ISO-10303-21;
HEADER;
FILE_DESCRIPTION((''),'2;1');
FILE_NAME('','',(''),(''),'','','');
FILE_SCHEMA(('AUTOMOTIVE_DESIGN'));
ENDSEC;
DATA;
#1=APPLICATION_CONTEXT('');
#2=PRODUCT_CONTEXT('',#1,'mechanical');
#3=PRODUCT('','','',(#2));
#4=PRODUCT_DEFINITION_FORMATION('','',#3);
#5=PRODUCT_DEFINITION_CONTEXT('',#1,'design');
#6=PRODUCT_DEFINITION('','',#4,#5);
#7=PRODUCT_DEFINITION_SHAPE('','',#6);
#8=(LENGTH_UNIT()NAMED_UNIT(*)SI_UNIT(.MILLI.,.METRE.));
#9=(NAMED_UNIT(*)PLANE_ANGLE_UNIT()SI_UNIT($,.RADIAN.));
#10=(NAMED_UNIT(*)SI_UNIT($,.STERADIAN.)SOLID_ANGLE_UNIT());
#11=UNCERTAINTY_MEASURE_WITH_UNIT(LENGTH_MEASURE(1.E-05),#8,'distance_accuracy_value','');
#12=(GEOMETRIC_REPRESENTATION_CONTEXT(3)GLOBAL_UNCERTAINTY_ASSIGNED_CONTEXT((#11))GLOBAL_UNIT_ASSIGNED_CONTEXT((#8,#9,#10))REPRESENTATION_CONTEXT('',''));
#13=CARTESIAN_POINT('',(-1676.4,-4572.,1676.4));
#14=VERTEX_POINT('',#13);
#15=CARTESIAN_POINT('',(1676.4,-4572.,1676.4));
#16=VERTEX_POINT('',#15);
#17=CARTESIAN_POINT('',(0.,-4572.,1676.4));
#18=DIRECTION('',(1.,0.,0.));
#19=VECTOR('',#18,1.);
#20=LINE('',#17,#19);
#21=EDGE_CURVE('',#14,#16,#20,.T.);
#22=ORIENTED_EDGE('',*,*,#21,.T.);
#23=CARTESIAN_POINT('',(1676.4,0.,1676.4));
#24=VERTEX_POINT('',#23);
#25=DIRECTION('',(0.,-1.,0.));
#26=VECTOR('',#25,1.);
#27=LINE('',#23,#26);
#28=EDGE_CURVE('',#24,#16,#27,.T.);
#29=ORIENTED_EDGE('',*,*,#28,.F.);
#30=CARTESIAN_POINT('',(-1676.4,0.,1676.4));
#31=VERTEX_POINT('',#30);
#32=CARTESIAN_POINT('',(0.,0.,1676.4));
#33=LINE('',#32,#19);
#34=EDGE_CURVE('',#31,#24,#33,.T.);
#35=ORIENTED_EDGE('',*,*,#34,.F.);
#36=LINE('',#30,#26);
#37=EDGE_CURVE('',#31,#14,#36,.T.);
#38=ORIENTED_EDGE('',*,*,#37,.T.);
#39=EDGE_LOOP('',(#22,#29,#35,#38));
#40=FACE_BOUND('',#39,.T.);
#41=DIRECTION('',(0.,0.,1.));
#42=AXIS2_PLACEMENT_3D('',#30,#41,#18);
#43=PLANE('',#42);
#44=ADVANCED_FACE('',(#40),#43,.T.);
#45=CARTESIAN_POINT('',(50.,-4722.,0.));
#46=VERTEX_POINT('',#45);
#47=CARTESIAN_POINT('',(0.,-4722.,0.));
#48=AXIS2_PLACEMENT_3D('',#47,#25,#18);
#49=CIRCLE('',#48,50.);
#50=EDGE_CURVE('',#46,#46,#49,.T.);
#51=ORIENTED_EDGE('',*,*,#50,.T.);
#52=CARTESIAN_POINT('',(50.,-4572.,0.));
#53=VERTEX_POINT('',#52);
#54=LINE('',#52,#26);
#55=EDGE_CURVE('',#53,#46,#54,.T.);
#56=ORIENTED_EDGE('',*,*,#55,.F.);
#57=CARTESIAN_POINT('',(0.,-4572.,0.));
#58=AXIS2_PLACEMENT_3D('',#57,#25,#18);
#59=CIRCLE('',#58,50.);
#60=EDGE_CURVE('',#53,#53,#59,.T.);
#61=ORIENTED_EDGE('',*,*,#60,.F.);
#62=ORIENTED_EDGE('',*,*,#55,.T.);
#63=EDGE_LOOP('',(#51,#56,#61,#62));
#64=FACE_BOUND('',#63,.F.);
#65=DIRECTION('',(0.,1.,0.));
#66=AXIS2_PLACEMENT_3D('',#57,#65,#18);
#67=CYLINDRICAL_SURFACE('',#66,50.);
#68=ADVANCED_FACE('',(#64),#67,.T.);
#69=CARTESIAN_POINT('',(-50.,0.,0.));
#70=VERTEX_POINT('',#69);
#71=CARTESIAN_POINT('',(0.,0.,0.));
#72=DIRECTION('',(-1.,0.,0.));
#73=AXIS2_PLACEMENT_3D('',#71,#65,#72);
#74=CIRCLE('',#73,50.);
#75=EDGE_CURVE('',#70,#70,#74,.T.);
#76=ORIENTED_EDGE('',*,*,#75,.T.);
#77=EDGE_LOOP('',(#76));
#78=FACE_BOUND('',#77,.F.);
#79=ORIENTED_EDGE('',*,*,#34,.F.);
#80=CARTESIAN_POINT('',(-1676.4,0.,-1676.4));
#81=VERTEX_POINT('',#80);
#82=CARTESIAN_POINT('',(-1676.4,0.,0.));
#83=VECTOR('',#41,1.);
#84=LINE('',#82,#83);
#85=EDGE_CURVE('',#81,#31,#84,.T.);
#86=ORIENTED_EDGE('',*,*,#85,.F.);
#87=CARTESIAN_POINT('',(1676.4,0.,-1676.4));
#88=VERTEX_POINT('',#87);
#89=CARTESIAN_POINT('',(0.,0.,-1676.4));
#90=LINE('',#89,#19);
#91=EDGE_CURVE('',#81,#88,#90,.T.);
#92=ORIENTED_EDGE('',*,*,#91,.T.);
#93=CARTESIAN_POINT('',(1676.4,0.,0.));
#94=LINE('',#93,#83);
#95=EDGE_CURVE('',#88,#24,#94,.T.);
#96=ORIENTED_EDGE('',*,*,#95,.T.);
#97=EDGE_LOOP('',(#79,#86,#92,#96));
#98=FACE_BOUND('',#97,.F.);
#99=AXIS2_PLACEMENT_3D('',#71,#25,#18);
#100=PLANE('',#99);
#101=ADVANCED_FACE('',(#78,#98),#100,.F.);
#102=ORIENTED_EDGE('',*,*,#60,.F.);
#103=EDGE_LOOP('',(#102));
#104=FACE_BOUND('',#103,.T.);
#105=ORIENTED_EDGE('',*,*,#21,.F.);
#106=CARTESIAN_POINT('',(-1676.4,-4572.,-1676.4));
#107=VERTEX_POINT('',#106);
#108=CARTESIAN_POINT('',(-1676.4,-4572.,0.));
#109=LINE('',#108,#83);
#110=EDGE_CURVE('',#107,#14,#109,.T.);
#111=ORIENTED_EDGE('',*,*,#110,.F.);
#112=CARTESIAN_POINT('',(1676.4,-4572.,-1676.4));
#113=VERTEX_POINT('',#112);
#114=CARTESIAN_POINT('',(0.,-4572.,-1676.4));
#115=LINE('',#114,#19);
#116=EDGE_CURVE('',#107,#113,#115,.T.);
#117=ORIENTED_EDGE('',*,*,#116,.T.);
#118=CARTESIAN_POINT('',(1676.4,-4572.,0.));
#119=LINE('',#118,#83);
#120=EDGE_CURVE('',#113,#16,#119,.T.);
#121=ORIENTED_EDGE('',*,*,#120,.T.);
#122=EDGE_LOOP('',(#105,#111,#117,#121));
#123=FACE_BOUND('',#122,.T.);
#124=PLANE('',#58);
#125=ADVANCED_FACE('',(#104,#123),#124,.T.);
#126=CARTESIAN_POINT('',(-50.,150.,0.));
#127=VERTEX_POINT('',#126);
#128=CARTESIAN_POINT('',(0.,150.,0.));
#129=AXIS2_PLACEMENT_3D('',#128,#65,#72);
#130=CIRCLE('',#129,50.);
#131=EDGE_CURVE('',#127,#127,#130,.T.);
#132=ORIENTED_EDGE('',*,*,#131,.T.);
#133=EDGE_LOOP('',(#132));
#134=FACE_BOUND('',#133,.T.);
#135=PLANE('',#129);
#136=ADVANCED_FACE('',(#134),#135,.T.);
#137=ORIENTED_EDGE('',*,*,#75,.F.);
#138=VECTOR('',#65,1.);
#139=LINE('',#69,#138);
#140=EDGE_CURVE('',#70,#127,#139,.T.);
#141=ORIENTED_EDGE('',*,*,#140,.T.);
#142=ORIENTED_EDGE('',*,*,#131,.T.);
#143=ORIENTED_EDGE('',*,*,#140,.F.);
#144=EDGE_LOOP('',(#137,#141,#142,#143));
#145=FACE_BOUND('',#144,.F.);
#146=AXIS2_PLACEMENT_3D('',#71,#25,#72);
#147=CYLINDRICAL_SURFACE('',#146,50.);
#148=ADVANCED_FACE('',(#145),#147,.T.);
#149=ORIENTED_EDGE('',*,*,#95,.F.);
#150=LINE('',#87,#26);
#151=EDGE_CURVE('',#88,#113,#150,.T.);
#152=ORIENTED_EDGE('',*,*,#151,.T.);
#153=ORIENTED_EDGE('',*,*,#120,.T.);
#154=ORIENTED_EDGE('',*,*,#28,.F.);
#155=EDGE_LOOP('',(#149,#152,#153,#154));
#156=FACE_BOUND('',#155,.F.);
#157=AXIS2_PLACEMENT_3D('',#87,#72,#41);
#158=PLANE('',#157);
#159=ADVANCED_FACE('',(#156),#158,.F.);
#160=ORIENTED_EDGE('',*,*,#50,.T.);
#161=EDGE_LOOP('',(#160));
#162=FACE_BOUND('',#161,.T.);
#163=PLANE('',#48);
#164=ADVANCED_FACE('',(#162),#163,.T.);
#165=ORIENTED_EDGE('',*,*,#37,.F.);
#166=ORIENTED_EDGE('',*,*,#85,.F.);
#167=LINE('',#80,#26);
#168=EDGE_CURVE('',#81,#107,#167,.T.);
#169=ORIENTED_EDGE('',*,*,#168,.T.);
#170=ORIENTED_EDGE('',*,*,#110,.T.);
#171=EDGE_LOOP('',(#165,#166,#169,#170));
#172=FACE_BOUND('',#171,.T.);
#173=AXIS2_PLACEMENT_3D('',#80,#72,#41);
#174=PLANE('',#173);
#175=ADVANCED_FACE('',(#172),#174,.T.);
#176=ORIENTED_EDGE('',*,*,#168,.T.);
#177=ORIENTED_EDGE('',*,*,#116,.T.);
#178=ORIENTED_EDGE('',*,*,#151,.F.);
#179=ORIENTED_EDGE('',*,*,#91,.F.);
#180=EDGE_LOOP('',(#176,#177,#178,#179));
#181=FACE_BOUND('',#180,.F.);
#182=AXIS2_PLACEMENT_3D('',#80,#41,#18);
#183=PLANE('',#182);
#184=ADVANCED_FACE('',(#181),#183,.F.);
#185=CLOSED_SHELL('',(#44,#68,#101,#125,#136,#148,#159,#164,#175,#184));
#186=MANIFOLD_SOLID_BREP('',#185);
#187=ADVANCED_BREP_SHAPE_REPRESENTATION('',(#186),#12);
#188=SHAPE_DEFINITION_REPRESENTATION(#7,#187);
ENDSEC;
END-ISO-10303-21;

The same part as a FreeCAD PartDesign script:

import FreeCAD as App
import Part
import Sketcher

doc = App.newDocument("Part")
body = doc.addObject("PartDesign::Body", "Body")

# Sketch on XZ plane
sketch1 = doc.addObject("Sketcher::SketchObject", "Sketch")
body.addObject(sketch1)
sketch1.AttachmentSupport = (doc.XZ_Plane, [""])
sketch1.MapMode = "FlatFace"
sketch1.addGeometry(Part.LineSegment(App.Vector(-1676.4, 1676.4, 0), App.Vector(-1676.4, -1676.4, 0)), False)
sketch1.addGeometry(Part.LineSegment(App.Vector(-1676.4, -1676.4, 0), App.Vector(1676.4, -1676.4, 0)), False)
sketch1.addGeometry(Part.LineSegment(App.Vector(1676.4, -1676.4, 0), App.Vector(1676.4, 1676.4, 0)), False)
sketch1.addGeometry(Part.LineSegment(App.Vector(1676.4, 1676.4, 0), App.Vector(-1676.4, 1676.4, 0)), False)
sketch1.addConstraint(Sketcher.Constraint("Coincident", 0, 2, 1, 1))
sketch1.addConstraint(Sketcher.Constraint("Coincident", 1, 2, 2, 1))
sketch1.addConstraint(Sketcher.Constraint("Coincident", 2, 2, 3, 1))
sketch1.addConstraint(Sketcher.Constraint("Coincident", 3, 2, 0, 1))
sketch1.addConstraint(Sketcher.Constraint("Vertical", 0))
sketch1.addConstraint(Sketcher.Constraint("Horizontal", 1))
sketch1.addConstraint(Sketcher.Constraint("Vertical", 2))
sketch1.addConstraint(Sketcher.Constraint("Horizontal", 3))
sketch1.addConstraint(Sketcher.Constraint("Symmetric", 0, 2, 2, 2, -1, 1))
sketch1.addConstraint(Sketcher.Constraint("Equal", 3, 0))
sketch1.addConstraint(Sketcher.Constraint("DistanceX", 1, 1, 1, 2, 3352.8))
pad1 = doc.addObject("PartDesign::Pad", "Pad")
body.addObject(pad1)
pad1.Profile = sketch1
pad1.Length = 4572

# Sketch on XZ plane
sketch2 = doc.addObject("Sketcher::SketchObject", "Sketch001")
body.addObject(sketch2)
sketch2.AttachmentSupport = (doc.XZ_Plane, [""])
sketch2.MapMode = "FlatFace"
sketch2.addGeometry(Part.Circle(App.Vector(0, 0, 0), App.Vector(0, 0, 1), 50), False)
sketch2.addConstraint(Sketcher.Constraint("Coincident", 0, 3, -1, 1))
sketch2.addConstraint(Sketcher.Constraint("Diameter", 0, 100.0))
pad2 = doc.addObject("PartDesign::Pad", "Pad001")
body.addObject(pad2)
pad2.Profile = sketch2
pad2.Length = 150
pad2.Reversed = True

# Sketch on XZ plane
sketch3 = doc.addObject("Sketcher::SketchObject", "Sketch002")
body.addObject(sketch3)
sketch3.AttachmentSupport = (doc.XZ_Plane, [""])
sketch3.MapMode = "FlatFace"
sketch3.AttachmentOffset = App.Placement(App.Vector(0, 0, 4572), App.Rotation())
sketch3.addGeometry(Part.Circle(App.Vector(0, 0, 0), App.Vector(0, 0, 1), 50), False)
sketch3.addConstraint(Sketcher.Constraint("Coincident", 0, 3, -1, 1))
sketch3.addConstraint(Sketcher.Constraint("Diameter", 0, 100.0))
pad3 = doc.addObject("PartDesign::Pad", "Pad002")
body.addObject(pad3)
pad3.Profile = sketch3
pad3.Length = 150

doc.recompute()
